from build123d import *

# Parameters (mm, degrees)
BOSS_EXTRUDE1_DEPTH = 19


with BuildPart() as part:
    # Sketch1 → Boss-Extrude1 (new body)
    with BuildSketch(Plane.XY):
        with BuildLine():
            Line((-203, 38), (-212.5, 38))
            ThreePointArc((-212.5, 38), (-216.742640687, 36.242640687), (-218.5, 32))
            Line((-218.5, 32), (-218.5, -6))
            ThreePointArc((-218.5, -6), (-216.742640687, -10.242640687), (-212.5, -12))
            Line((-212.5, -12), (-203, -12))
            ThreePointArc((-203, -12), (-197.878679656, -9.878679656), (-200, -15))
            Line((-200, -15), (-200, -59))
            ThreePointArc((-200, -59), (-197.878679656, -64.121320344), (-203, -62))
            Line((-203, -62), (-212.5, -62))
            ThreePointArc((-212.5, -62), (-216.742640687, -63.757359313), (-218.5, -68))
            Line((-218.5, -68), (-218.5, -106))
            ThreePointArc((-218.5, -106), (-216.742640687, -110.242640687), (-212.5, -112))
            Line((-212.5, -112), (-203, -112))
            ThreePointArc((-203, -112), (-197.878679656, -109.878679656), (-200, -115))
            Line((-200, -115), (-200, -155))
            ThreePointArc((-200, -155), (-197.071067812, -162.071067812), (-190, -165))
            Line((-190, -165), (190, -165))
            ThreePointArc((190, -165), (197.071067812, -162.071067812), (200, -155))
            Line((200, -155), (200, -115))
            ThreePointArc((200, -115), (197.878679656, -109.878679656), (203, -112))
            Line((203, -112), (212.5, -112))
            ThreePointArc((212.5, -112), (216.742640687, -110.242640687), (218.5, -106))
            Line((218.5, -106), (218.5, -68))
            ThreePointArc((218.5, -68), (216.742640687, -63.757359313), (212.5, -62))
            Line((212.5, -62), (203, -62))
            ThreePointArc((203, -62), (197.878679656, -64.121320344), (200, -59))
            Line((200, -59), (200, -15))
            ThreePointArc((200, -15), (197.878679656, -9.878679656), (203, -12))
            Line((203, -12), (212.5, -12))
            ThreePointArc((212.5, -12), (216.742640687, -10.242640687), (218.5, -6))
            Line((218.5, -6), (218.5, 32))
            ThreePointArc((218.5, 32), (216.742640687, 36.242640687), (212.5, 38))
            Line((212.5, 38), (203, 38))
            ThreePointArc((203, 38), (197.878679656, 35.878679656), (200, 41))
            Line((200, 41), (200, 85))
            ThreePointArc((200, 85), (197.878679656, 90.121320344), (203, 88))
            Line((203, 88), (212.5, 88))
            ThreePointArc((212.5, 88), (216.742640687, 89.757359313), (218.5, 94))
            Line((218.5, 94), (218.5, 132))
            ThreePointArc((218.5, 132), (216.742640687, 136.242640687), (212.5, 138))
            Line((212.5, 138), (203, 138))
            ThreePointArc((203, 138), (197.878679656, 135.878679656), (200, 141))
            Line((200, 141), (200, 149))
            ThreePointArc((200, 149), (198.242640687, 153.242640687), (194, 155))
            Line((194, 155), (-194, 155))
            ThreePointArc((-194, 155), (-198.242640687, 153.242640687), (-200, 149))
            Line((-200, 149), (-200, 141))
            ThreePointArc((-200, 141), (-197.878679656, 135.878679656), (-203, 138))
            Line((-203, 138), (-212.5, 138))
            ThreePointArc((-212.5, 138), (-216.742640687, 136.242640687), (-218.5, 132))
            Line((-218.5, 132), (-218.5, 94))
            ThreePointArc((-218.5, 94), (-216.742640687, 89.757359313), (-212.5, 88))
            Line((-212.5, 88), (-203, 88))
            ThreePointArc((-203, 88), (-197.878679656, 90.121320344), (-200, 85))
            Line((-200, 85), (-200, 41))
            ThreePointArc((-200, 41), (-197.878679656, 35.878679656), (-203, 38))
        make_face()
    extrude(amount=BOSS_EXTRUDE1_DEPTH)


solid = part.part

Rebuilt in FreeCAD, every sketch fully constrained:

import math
import FreeCAD as App
import Part
import Sketcher
from FreeCAD import Vector

doc = App.newDocument("Part")
body = doc.addObject("PartDesign::Body", "Body")

# Sketch on XY plane
sketch1 = doc.addObject("Sketcher::SketchObject", "Sketch")
body.addObject(sketch1)
sketch1.AttachmentSupport = (doc.XY_Plane, [""])
sketch1.MapMode = "FlatFace"
sketch1.addGeometry([
    Part.LineSegment(Vector(-203, 38, 0), Vector(-212.5, 38, 0)),  # 0
    Part.ArcOfCircle(Part.Circle(Vector(-212.5, 32, 0), Vector(0, 0, 1), 6), math.radians(90), math.radians(180)),  # 1
    Part.LineSegment(Vector(-218.5, 32, 0), Vector(-218.5, -6, 0)),  # 2
    Part.ArcOfCircle(Part.Circle(Vector(-212.5, -6, 0), Vector(0, 0, 1), 6), math.radians(180), math.radians(270)),  # 3
    Part.LineSegment(Vector(-212.5, -12, 0), Vector(-203, -12, 0)),  # 4
    Part.ArcOfCircle(Part.Circle(Vector(-200, -12, 0), Vector(0, 0, 1), 3), math.radians(-90), math.radians(180)),  # 5
    Part.LineSegment(Vector(-200, -15, 0), Vector(-200, -59, 0)),  # 6
    Part.ArcOfCircle(Part.Circle(Vector(-200, -62, 0), Vector(0, 0, 1), 3), math.radians(180), math.radians(450)),  # 7
    Part.LineSegment(Vector(-203, -62, 0), Vector(-212.5, -62, 0)),  # 8
    Part.ArcOfCircle(Part.Circle(Vector(-212.5, -68, 0), Vector(0, 0, 1), 6), math.radians(90), math.radians(180)),  # 9
    Part.LineSegment(Vector(-218.5, -68, 0), Vector(-218.5, -106, 0)),  # 10
    Part.ArcOfCircle(Part.Circle(Vector(-212.5, -106, 0), Vector(0, 0, 1), 6), math.radians(180), math.radians(270)),  # 11
    Part.LineSegment(Vector(-212.5, -112, 0), Vector(-203, -112, 0)),  # 12
    Part.ArcOfCircle(Part.Circle(Vector(-200, -112, 0), Vector(0, 0, 1), 3), math.radians(-90), math.radians(180)),  # 13
    Part.LineSegment(Vector(-200, -115, 0), Vector(-200, -155, 0)),  # 14
    Part.ArcOfCircle(Part.Circle(Vector(-190, -155, 0), Vector(0, 0, 1), 10), math.radians(180), math.radians(270)),  # 15
    Part.LineSegment(Vector(-190, -165, 0), Vector(190, -165, 0)),  # 16
    Part.ArcOfCircle(Part.Circle(Vector(190, -155, 0), Vector(0, 0, 1), 10), math.radians(-90), math.radians(0)),  # 17
    Part.LineSegment(Vector(200, -155, 0), Vector(200, -115, 0)),  # 18
    Part.ArcOfCircle(Part.Circle(Vector(200, -112, 0), Vector(0, 0, 1), 3), math.radians(0), math.radians(270)),  # 19
    Part.LineSegment(Vector(203, -112, 0), Vector(212.5, -112, 0)),  # 20
    Part.ArcOfCircle(Part.Circle(Vector(212.5, -106, 0), Vector(0, 0, 1), 6), math.radians(-90), math.radians(0)),  # 21
    Part.LineSegment(Vector(218.5, -106, 0), Vector(218.5, -68, 0)),  # 22
    Part.ArcOfCircle(Part.Circle(Vector(212.5, -68, 0), Vector(0, 0, 1), 6), math.radians(0), math.radians(90)),  # 23
    Part.LineSegment(Vector(212.5, -62, 0), Vector(203, -62, 0)),  # 24
    Part.ArcOfCircle(Part.Circle(Vector(200, -62, 0), Vector(0, 0, 1), 3), math.radians(90), math.radians(360)),  # 25
    Part.LineSegment(Vector(200, -59, 0), Vector(200, -15, 0)),  # 26
    Part.ArcOfCircle(Part.Circle(Vector(200, -12, 0), Vector(0, 0, 1), 3), math.radians(0), math.radians(270)),  # 27
    Part.LineSegment(Vector(203, -12, 0), Vector(212.5, -12, 0)),  # 28
    Part.ArcOfCircle(Part.Circle(Vector(212.5, -6, 0), Vector(0, 0, 1), 6), math.radians(-90), math.radians(0)),  # 29
    Part.LineSegment(Vector(218.5, -6, 0), Vector(218.5, 32, 0)),  # 30
    Part.ArcOfCircle(Part.Circle(Vector(212.5, 32, 0), Vector(0, 0, 1), 6), math.radians(0), math.radians(90)),  # 31
    Part.LineSegment(Vector(212.5, 38, 0), Vector(203, 38, 0)),  # 32
    Part.ArcOfCircle(Part.Circle(Vector(200, 38, 0), Vector(0, 0, 1), 3), math.radians(90), math.radians(360)),  # 33
    Part.LineSegment(Vector(200, 41, 0), Vector(200, 85, 0)),  # 34
    Part.ArcOfCircle(Part.Circle(Vector(200, 88, 0), Vector(0, 0, 1), 3), math.radians(0), math.radians(270)),  # 35
    Part.LineSegment(Vector(203, 88, 0), Vector(212.5, 88, 0)),  # 36
    Part.ArcOfCircle(Part.Circle(Vector(212.5, 94, 0), Vector(0, 0, 1), 6), math.radians(-90), math.radians(0)),  # 37
    Part.LineSegment(Vector(218.5, 94, 0), Vector(218.5, 132, 0)),  # 38
    Part.ArcOfCircle(Part.Circle(Vector(212.5, 132, 0), Vector(0, 0, 1), 6), math.radians(0), math.radians(90)),  # 39
    Part.LineSegment(Vector(212.5, 138, 0), Vector(203, 138, 0)),  # 40
    Part.ArcOfCircle(Part.Circle(Vector(200, 138, 0), Vector(0, 0, 1), 3), math.radians(90), math.radians(360)),  # 41
    Part.LineSegment(Vector(200, 141, 0), Vector(200, 149, 0)),  # 42
    Part.ArcOfCircle(Part.Circle(Vector(194, 149, 0), Vector(0, 0, 1), 6), math.radians(0), math.radians(90)),  # 43
    Part.LineSegment(Vector(194, 155, 0), Vector(-194, 155, 0)),  # 44
    Part.ArcOfCircle(Part.Circle(Vector(-194, 149, 0), Vector(0, 0, 1), 6), math.radians(90), math.radians(180)),  # 45
    Part.LineSegment(Vector(-200, 149, 0), Vector(-200, 141, 0)),  # 46
    Part.ArcOfCircle(Part.Circle(Vector(-200, 138, 0), Vector(0, 0, 1), 3), math.radians(180), math.radians(450)),  # 47
    Part.LineSegment(Vector(-203, 138, 0), Vector(-212.5, 138, 0)),  # 48
    Part.ArcOfCircle(Part.Circle(Vector(-212.5, 132, 0), Vector(0, 0, 1), 6), math.radians(90), math.radians(180)),  # 49
    Part.LineSegment(Vector(-218.5, 132, 0), Vector(-218.5, 94, 0)),  # 50
    Part.ArcOfCircle(Part.Circle(Vector(-212.5, 94, 0), Vector(0, 0, 1), 6), math.radians(180), math.radians(270)),  # 51
    Part.LineSegment(Vector(-212.5, 88, 0), Vector(-203, 88, 0)),  # 52
    Part.ArcOfCircle(Part.Circle(Vector(-200, 88, 0), Vector(0, 0, 1), 3), math.radians(-90), math.radians(180)),  # 53
    Part.LineSegment(Vector(-200, 85, 0), Vector(-200, 41, 0)),  # 54
    Part.ArcOfCircle(Part.Circle(Vector(-200, 38, 0), Vector(0, 0, 1), 3), math.radians(180), math.radians(450)),  # 55
], False)
sketch1.addConstraint([
    Sketcher.Constraint("Tangent", 0, 2, 1, 1),
    Sketcher.Constraint("Tangent", 1, 2, 2, 1),
    Sketcher.Constraint("Tangent", 2, 2, 3, 1),
    Sketcher.Constraint("Tangent", 3, 2, 4, 1),
    Sketcher.Constraint("Coincident", 4, 2, 5, 2),
    Sketcher.Constraint("Coincident", 5, 1, 6, 1),
    Sketcher.Constraint("Coincident", 6, 2, 7, 2),
    Sketcher.Constraint("Coincident", 7, 1, 8, 1),
    Sketcher.Constraint("Tangent", 8, 2, 9, 1),
    Sketcher.Constraint("Tangent", 9, 2, 10, 1),
    Sketcher.Constraint("Tangent", 10, 2, 11, 1),
    Sketcher.Constraint("Tangent", 11, 2, 12, 1),
    Sketcher.Constraint("Coincident", 12, 2, 13, 2),
    Sketcher.Constraint("Coincident", 13, 1, 14, 1),
    Sketcher.Constraint("Tangent", 14, 2, 15, 1),
    Sketcher.Constraint("Tangent", 15, 2, 16, 1),
    Sketcher.Constraint("Tangent", 16, 2, 17, 1),
    Sketcher.Constraint("Tangent", 17, 2, 18, 1),
    Sketcher.Constraint("Coincident", 18, 2, 19, 2),
    Sketcher.Constraint("Coincident", 19, 1, 20, 1),
    Sketcher.Constraint("Tangent", 20, 2, 21, 1),
    Sketcher.Constraint("Tangent", 21, 2, 22, 1),
    Sketcher.Constraint("Tangent", 22, 2, 23, 1),
    Sketcher.Constraint("Tangent", 23, 2, 24, 1),
    Sketcher.Constraint("Coincident", 24, 2, 25, 2),
    Sketcher.Constraint("Coincident", 25, 1, 26, 1),
    Sketcher.Constraint("Coincident", 26, 2, 27, 2),
    Sketcher.Constraint("Coincident", 27, 1, 28, 1),
    Sketcher.Constraint("Tangent", 28, 2, 29, 1),
    Sketcher.Constraint("Tangent", 29, 2, 30, 1),
    Sketcher.Constraint("Tangent", 30, 2, 31, 1),
    Sketcher.Constraint("Tangent", 31, 2, 32, 1),
    Sketcher.Constraint("Coincident", 32, 2, 33, 2),
    Sketcher.Constraint("Coincident", 33, 1, 34, 1),
    Sketcher.Constraint("Coincident", 34, 2, 35, 2),
    Sketcher.Constraint("Coincident", 35, 1, 36, 1),
    Sketcher.Constraint("Tangent", 36, 2, 37, 1),
    Sketcher.Constraint("Tangent", 37, 2, 38, 1),
    Sketcher.Constraint("Tangent", 38, 2, 39, 1),
    Sketcher.Constraint("Tangent", 39, 2, 40, 1),
    Sketcher.Constraint("Coincident", 40, 2, 41, 2),
    Sketcher.Constraint("Coincident", 41, 1, 42, 1),
    Sketcher.Constraint("Tangent", 42, 2, 43, 1),
    Sketcher.Constraint("Tangent", 43, 2, 44, 1),
    Sketcher.Constraint("Tangent", 44, 2, 45, 1),
    Sketcher.Constraint("Tangent", 45, 2, 46, 1),
    Sketcher.Constraint("Coincident", 46, 2, 47, 2),
    Sketcher.Constraint("Coincident", 47, 1, 48, 1),
    Sketcher.Constraint("Tangent", 48, 2, 49, 1),
    Sketcher.Constraint("Tangent", 49, 2, 50, 1),
    Sketcher.Constraint("Tangent", 50, 2, 51, 1),
    Sketcher.Constraint("Tangent", 51, 2, 52, 1),
    Sketcher.Constraint("Coincident", 52, 2, 53, 2),
    Sketcher.Constraint("Coincident", 53, 1, 54, 1),
    Sketcher.Constraint("Coincident", 54, 2, 55, 2),
    Sketcher.Constraint("Coincident", 55, 1, 0, 1),
    Sketcher.Constraint("Horizontal", 0),
    Sketcher.Constraint("Vertical", 2),
    Sketcher.Constraint("Horizontal", 4),
    Sketcher.Constraint("Vertical", 6),
    Sketcher.Constraint("Horizontal", 8),
    Sketcher.Constraint("Vertical", 10),
    Sketcher.Constraint("Horizontal", 12),
    Sketcher.Constraint("Vertical", 14),
    Sketcher.Constraint("Horizontal", 16),
    Sketcher.Constraint("Vertical", 18),
    Sketcher.Constraint("Horizontal", 20),
    Sketcher.Constraint("Vertical", 22),
    Sketcher.Constraint("Horizontal", 24),
    Sketcher.Constraint("Vertical", 26),
    Sketcher.Constraint("Horizontal", 28),
    Sketcher.Constraint("Vertical", 30),
    Sketcher.Constraint("Horizontal", 32),
    Sketcher.Constraint("Vertical", 34),
    Sketcher.Constraint("Horizontal", 36),
    Sketcher.Constraint("Vertical", 38),
    Sketcher.Constraint("Horizontal", 40),
    Sketcher.Constraint("Vertical", 42),
    Sketcher.Constraint("Horizontal", 44),
    Sketcher.Constraint("Vertical", 46),
    Sketcher.Constraint("Horizontal", 48),
    Sketcher.Constraint("Vertical", 50),
    Sketcher.Constraint("Horizontal", 52),
    Sketcher.Constraint("Vertical", 54),
    Sketcher.Constraint("Equal", 1, 3),
    Sketcher.Constraint("Equal", 5, 7),
    Sketcher.Constraint("Equal", 3, 9),
    Sketcher.Constraint("Equal", 9, 11),
    Sketcher.Constraint("Equal", 7, 13),
    Sketcher.Constraint("Equal", 15, 17),
    Sketcher.Constraint("Equal", 13, 19),
    Sketcher.Constraint("Equal", 11, 21),
    Sketcher.Constraint("Equal", 21, 23),
    Sketcher.Constraint("Equal", 19, 25),
    Sketcher.Constraint("Equal", 25, 27),
    Sketcher.Constraint("Equal", 23, 29),
    Sketcher.Constraint("Equal", 29, 31),
    Sketcher.Constraint("Equal", 27, 33),
    Sketcher.Constraint("Equal", 33, 35),
    Sketcher.Constraint("Equal", 31, 37),
    Sketcher.Constraint("Equal", 37, 39),
    Sketcher.Constraint("Equal", 35, 41),
    Sketcher.Constraint("Equal", 39, 43),
    Sketcher.Constraint("Equal", 43, 45),
    Sketcher.Constraint("Equal", 41, 47),
    Sketcher.Constraint("Equal", 45, 49),
    Sketcher.Constraint("Equal", 49, 51),
    Sketcher.Constraint("Equal", 47, 53),
    Sketcher.Constraint("Equal", 53, 55),
    Sketcher.Constraint("Symmetric", 13, 3, 19, 3, -2),
    Sketcher.Constraint("Symmetric", 11, 3, 21, 3, -2),
    Sketcher.Constraint("Symmetric", 7, 3, 25, 3, -2),
    Sketcher.Constraint("Symmetric", 5, 3, 27, 3, -2),
    Sketcher.Constraint("Symmetric", 3, 3, 29, 3, -2),
    Sketcher.Constraint("Symmetric", 41, 3, 47, 3, -2),
    Sketcher.Constraint("Symmetric", 39, 3, 49, 3, -2),
    Sketcher.Constraint("Symmetric", 35, 3, 53, 3, -2),
    Sketcher.Constraint("Symmetric", 33, 3, 55, 3, -2),
    Sketcher.Constraint("Horizontal", 9, 3, 23, 3),
    Sketcher.Constraint("Horizontal", 1, 3, 31, 3),
    Sketcher.Constraint("Horizontal", 37, 3, 51, 3),
    Sketcher.Constraint("Horizontal", 55, 3, 0, 2),
    Sketcher.Constraint("Horizontal", 27, 3, 3, 2),
    Sketcher.Constraint("Horizontal", 25, 3, 7, 1),
    Sketcher.Constraint("Horizontal", 19, 3, 11, 2),
    Sketcher.Constraint("Horizontal", 53, 3, 35, 1),
    Sketcher.Constraint("Horizontal", 47, 3, 39, 2),
    Sketcher.Constraint("Vertical", 5, 3, 7, 3),
    Sketcher.Constraint("Vertical", 3, 3, 9, 3),
    Sketcher.Constraint("Vertical", 7, 3, 13, 3),
    Sketcher.Constraint("Vertical", 27, 3, 33, 3),
    Sketcher.Constraint("Vertical", 33, 3, 35, 3),
    Sketcher.Constraint("Vertical", 31, 3, 37, 3),
    Sketcher.Constraint("Vertical", 35, 3, 41, 3),
    Sketcher.Constraint("Vertical", 55, 3, 5, 1),
    Sketcher.Constraint("Vertical", 6, 2, 13, 1),
    Sketcher.Constraint("Vertical", 41, 3, 17, 2),
    Sketcher.Constraint("Vertical", 18, 2, 25, 1),
    Sketcher.Constraint("Vertical", 26, 2, 33, 1),
    Sketcher.Constraint("Vertical", 34, 2, 41, 1),
    Sketcher.Constraint("Vertical", 14, 2, 45, 2),
    Sketcher.Constraint("Vertical", 46, 2, 53, 1),
    Sketcher.Constraint("Equal", 2, 10),
    Sketcher.Constraint("Equal", 26, 34),
    Sketcher.Constraint("Equal", 30, 38),
    Sketcher.Constraint("Radius", 1, 6.0),
    Sketcher.Constraint("Radius", 5, 3.0),
    Sketcher.Constraint("Radius", 15, 10.0),
    Sketcher.Constraint("DistanceX", 16, 1, 16, 2, 380.0),
    Sketcher.Constraint("DistanceY", 2, 2, 2, 1, 38.0),
    Sketcher.Constraint("DistanceY", 6, 2, 6, 1, 44.0),
    Sketcher.Constraint("DistanceY", 14, 2, 14, 1, 40.0),
    Sketcher.Constraint("DistanceY", 42, 1, 42, 2, 8.0),
    Sketcher.Constraint("DistanceX", 0, 2, 0, 1, 9.5),
    Sketcher.Constraint("DistanceY", -1, 1, 1, 3, 32.0),
])
pad1 = doc.addObject("PartDesign::Pad", "Pad")
body.addObject(pad1)
pad1.Profile = sketch1
pad1.Length = 19

doc.recompute()
